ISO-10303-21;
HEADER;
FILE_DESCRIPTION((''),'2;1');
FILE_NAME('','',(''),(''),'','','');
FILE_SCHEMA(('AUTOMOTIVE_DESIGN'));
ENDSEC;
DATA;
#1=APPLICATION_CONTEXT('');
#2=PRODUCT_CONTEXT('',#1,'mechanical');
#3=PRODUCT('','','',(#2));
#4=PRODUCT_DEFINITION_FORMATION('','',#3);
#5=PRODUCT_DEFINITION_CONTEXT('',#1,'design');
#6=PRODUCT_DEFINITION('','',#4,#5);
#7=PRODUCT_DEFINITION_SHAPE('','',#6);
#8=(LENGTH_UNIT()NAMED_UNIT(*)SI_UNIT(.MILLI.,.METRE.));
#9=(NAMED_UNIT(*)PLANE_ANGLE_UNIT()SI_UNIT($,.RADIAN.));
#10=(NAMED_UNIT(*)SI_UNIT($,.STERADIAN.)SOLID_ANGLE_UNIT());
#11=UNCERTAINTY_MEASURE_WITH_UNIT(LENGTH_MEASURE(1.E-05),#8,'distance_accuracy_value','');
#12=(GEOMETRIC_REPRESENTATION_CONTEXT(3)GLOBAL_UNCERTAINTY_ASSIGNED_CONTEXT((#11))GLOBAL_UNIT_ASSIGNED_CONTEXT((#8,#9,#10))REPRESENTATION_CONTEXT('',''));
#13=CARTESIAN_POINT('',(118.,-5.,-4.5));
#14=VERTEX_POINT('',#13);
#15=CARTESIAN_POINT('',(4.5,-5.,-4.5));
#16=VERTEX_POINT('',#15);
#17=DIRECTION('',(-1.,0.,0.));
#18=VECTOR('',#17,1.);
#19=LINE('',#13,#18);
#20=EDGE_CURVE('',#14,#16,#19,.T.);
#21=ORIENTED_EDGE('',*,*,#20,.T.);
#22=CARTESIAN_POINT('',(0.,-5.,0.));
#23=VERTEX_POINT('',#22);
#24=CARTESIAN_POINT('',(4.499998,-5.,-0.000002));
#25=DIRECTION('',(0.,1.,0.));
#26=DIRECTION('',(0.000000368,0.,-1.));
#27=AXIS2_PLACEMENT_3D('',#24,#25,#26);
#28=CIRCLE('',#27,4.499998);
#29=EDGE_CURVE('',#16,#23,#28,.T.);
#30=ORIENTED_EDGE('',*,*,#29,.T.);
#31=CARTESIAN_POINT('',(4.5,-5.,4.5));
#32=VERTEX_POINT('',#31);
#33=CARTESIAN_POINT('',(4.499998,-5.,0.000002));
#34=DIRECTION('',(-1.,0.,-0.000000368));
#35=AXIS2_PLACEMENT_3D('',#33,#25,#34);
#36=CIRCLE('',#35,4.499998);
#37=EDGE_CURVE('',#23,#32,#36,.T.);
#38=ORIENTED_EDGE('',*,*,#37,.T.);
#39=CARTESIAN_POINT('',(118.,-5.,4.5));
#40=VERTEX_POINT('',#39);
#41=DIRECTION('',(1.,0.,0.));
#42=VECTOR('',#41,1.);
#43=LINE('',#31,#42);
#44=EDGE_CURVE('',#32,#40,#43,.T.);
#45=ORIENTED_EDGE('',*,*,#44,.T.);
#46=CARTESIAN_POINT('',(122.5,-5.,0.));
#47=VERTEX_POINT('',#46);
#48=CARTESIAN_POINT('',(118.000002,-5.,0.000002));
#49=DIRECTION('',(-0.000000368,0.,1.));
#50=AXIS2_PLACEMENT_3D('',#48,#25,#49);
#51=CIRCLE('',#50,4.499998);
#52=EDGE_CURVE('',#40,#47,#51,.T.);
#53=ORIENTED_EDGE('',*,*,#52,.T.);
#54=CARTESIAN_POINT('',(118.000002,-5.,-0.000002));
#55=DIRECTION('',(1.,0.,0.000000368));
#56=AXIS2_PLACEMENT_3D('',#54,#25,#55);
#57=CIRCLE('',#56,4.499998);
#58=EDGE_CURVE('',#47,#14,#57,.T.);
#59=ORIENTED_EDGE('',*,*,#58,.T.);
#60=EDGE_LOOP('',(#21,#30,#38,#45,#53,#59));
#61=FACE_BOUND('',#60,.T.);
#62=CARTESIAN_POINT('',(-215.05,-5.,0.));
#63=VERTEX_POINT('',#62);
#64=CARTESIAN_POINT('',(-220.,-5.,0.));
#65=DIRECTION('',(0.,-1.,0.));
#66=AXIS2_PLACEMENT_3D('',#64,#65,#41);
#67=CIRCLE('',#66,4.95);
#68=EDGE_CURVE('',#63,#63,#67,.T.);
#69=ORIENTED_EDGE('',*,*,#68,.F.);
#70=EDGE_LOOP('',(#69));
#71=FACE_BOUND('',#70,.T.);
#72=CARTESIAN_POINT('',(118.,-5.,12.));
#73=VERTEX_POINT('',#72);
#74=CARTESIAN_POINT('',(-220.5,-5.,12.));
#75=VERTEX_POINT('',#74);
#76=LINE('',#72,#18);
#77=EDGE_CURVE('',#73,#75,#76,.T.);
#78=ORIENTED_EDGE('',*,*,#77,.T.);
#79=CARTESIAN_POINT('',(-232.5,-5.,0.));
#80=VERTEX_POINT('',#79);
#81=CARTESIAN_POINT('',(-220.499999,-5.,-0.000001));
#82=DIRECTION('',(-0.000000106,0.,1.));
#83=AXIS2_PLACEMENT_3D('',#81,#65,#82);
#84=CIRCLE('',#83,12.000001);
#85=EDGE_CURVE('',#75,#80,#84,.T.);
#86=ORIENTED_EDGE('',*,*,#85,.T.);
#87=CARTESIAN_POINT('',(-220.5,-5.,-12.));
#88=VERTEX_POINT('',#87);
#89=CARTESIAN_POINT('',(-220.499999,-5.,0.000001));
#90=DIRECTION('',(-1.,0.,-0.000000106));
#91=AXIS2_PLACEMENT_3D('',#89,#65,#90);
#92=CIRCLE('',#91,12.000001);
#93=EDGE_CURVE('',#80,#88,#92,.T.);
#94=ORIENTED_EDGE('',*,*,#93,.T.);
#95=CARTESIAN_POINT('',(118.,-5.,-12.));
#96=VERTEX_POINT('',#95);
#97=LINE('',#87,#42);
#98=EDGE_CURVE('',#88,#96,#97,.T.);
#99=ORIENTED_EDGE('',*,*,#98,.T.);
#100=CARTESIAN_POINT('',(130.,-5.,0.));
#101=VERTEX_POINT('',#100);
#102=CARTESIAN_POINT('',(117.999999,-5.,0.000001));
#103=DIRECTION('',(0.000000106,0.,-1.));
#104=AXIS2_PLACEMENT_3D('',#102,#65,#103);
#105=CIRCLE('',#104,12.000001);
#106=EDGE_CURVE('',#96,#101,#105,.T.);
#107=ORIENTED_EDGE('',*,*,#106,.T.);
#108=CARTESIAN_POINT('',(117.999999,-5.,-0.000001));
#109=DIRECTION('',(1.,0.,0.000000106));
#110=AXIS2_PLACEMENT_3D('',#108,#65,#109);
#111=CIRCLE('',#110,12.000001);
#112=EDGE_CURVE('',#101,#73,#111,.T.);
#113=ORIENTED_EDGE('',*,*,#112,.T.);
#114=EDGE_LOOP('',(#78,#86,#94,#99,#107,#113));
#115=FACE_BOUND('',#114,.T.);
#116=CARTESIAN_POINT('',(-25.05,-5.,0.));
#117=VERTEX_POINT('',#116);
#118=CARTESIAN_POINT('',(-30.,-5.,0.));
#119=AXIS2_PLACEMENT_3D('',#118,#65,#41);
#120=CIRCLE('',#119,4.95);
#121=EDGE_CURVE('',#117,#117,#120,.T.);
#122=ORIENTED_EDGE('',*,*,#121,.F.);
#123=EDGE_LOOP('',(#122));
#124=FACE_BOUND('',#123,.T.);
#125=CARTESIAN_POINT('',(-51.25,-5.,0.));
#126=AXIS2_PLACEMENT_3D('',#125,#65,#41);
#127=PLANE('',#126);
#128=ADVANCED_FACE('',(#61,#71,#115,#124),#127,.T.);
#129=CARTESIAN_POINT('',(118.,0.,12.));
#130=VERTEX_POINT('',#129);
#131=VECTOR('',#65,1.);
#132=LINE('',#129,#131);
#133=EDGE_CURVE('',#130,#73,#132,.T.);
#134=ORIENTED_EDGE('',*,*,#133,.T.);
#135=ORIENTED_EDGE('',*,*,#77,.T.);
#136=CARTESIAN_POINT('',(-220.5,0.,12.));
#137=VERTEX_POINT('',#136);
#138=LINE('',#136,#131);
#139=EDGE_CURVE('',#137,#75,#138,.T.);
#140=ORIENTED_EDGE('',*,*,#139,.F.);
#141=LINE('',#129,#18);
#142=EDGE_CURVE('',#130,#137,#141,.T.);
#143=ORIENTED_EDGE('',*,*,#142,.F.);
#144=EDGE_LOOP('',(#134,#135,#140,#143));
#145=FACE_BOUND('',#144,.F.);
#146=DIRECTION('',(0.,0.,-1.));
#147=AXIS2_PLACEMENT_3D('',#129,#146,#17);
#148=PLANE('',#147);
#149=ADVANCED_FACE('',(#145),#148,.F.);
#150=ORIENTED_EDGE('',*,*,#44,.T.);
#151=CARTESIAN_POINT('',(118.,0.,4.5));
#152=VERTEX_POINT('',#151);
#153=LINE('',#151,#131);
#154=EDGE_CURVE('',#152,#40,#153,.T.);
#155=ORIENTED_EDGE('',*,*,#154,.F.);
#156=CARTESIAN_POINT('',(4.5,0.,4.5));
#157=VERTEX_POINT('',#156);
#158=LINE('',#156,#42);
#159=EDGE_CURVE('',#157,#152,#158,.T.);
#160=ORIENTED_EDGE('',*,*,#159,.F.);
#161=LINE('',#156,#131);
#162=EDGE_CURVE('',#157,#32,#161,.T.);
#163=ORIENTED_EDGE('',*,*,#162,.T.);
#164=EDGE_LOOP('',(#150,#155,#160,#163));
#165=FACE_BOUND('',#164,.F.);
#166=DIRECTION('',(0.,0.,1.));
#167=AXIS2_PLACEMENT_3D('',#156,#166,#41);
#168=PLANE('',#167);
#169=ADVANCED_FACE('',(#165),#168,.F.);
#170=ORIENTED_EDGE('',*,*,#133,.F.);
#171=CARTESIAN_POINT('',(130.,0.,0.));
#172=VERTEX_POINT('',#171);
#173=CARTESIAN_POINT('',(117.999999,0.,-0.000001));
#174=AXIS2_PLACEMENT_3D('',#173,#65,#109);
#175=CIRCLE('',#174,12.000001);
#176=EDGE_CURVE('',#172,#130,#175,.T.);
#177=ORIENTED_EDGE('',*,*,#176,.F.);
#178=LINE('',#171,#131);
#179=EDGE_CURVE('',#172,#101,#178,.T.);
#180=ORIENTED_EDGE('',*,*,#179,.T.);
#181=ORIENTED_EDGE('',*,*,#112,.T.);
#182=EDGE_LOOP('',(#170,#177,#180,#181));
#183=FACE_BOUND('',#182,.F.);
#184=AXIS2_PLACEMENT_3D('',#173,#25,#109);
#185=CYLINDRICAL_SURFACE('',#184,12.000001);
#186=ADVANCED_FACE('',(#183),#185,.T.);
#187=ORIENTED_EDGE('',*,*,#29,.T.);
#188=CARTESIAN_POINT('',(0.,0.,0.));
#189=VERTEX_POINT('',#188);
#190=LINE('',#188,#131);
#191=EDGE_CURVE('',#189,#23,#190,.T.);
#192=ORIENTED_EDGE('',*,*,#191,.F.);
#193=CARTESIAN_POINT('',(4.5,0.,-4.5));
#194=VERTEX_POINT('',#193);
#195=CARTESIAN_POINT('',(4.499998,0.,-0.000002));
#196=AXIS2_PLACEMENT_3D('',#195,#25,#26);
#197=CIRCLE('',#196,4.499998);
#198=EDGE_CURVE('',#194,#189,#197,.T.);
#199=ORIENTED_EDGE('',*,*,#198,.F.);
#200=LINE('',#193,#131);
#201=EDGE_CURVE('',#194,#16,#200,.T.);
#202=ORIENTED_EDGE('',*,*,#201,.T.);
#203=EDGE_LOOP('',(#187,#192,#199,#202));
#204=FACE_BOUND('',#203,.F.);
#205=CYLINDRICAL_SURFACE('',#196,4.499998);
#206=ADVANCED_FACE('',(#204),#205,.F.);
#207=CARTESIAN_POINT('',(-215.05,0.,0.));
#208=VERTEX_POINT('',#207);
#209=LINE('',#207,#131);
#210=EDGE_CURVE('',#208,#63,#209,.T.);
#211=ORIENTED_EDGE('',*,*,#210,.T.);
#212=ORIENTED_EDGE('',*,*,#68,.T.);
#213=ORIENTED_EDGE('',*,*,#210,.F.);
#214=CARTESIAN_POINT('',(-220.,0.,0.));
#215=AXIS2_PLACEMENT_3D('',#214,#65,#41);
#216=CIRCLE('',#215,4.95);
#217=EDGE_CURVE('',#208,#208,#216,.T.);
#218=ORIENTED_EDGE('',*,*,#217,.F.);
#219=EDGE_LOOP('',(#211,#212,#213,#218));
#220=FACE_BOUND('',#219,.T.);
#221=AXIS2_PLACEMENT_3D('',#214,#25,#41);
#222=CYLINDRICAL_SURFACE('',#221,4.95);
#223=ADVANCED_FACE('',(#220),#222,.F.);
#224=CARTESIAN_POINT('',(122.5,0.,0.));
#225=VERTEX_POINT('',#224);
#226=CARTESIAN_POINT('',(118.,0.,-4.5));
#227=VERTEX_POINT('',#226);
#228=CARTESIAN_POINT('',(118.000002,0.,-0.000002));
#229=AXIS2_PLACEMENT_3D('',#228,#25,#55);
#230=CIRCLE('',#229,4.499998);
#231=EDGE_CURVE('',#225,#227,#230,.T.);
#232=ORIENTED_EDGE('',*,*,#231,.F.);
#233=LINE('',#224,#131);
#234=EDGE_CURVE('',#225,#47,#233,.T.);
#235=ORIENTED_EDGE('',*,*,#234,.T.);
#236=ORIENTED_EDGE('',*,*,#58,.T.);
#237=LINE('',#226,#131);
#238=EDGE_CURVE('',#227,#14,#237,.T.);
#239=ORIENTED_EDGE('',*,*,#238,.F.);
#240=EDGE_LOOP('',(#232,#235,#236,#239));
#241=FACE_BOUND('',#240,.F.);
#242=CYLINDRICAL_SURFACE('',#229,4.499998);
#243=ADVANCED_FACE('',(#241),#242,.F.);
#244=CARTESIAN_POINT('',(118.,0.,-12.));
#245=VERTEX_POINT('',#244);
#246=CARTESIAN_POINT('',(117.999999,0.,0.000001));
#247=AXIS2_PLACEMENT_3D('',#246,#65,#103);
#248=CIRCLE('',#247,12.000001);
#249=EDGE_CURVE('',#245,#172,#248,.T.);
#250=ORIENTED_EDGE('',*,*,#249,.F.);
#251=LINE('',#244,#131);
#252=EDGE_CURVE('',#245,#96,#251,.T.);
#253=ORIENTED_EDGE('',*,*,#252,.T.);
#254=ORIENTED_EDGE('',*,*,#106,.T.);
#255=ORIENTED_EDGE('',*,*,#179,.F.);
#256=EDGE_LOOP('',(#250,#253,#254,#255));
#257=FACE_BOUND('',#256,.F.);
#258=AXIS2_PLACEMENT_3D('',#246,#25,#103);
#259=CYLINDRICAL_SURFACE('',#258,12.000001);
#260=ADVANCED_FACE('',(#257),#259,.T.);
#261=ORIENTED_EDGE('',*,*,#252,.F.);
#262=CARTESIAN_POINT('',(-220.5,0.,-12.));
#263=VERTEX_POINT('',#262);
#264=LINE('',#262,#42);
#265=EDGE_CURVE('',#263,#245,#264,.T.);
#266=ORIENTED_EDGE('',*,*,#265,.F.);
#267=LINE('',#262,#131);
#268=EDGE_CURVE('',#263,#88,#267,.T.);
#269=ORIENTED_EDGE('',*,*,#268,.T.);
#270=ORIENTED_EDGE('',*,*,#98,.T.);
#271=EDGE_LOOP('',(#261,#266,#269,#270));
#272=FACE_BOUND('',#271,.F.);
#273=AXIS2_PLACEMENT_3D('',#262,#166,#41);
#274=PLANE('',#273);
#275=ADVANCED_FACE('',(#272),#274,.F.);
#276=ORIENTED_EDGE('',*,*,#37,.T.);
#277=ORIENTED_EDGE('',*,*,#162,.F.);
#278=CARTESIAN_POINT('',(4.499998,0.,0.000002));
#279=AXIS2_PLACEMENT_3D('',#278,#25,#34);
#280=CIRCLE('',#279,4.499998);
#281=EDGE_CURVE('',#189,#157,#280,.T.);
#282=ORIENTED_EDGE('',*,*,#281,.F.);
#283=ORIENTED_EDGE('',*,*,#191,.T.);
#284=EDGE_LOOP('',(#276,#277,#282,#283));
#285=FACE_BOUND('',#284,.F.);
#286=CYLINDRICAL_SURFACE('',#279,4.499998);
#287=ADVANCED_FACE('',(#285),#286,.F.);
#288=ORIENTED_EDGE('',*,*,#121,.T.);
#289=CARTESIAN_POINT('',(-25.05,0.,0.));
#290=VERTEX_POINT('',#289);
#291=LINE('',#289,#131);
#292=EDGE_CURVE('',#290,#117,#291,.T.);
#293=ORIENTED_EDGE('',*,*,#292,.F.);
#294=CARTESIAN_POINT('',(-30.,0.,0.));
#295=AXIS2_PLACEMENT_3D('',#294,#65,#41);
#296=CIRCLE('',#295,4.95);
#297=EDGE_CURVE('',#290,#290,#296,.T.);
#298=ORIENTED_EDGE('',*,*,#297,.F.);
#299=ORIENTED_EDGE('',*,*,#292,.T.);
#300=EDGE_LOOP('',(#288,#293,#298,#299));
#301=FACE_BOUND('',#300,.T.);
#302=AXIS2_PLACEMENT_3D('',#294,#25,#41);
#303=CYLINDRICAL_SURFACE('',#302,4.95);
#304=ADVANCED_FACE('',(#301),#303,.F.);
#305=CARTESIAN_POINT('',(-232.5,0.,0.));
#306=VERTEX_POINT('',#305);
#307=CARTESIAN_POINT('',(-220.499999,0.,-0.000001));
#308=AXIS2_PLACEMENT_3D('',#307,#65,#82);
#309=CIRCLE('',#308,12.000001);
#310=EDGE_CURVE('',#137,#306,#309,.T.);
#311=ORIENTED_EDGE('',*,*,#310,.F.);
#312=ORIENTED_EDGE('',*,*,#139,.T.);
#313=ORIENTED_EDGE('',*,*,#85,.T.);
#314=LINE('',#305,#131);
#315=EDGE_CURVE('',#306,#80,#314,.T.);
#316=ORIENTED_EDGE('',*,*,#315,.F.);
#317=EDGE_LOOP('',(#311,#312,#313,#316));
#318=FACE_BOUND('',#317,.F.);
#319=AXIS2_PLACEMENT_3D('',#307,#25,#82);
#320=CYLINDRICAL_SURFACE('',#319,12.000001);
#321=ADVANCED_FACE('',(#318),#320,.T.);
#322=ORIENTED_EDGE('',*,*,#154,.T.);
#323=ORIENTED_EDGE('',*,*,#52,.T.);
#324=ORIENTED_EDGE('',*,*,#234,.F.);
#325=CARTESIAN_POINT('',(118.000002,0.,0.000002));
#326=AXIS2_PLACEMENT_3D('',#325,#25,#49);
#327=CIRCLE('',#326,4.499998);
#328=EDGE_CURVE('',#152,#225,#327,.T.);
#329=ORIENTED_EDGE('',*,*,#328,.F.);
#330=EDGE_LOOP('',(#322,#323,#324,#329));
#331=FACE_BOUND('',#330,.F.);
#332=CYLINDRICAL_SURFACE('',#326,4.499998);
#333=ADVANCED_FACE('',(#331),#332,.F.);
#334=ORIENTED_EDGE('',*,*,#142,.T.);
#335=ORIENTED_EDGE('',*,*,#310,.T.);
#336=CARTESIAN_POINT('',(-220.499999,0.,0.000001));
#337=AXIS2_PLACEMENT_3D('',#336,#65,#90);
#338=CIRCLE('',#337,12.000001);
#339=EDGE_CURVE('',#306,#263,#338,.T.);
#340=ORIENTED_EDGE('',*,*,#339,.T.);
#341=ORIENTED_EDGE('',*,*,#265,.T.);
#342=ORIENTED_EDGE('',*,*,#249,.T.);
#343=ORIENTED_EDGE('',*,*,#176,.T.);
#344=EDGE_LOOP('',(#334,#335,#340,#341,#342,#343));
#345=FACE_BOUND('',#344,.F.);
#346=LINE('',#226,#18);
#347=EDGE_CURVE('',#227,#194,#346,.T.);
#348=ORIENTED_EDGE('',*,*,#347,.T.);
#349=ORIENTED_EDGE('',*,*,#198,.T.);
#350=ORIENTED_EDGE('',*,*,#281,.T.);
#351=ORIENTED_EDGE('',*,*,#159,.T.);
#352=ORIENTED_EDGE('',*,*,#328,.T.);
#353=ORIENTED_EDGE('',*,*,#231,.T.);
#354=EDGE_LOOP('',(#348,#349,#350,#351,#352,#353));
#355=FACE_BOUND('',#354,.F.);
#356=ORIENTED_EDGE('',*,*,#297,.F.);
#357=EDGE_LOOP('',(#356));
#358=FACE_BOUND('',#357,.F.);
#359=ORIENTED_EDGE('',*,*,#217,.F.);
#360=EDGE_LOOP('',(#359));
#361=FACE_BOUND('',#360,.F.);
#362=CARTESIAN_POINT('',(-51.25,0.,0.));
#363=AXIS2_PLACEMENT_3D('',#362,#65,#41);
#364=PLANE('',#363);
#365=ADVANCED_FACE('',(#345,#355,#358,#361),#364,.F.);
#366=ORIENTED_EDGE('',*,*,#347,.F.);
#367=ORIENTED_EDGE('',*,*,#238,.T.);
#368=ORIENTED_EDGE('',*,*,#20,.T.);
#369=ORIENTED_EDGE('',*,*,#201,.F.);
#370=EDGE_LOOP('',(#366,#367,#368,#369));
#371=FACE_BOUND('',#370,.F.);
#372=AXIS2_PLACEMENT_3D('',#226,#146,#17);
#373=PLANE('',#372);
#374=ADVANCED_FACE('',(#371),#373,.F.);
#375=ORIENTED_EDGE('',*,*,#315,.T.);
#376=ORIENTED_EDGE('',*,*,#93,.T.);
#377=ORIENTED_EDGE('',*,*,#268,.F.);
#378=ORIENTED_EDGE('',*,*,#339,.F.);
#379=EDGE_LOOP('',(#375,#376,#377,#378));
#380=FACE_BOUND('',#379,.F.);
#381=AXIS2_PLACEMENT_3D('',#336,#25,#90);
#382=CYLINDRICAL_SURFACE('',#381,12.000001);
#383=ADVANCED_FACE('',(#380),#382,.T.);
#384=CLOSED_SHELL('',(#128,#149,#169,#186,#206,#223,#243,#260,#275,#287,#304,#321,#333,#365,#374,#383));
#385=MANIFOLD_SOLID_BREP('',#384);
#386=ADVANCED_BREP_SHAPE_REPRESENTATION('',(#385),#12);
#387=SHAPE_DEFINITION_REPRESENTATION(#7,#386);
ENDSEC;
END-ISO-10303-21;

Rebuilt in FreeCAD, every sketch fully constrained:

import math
import FreeCAD as App
import Part
import Sketcher

V = App.Vector

doc = App.newDocument("Part")
body = doc.addObject("PartDesign::Body", "Body")

# Sketch on XZ plane
sketch1 = body.newObject("Sketcher::SketchObject", "Sketch")
sketch1.AttachmentSupport = (doc.getObject("XZ_Plane"), [""])
sketch1.MapMode = "FlatFace"
sketch1.addGeometry([
    Part.LineSegment(V(-220.5, -12, 0), V(118, -12, 0)),  # 0
    Part.ArcOfCircle(Part.Circle(V(117.999999, 0.000001, 0), V(0, 0, 1), 12.000001), math.radians(-89.999994), math.radians(-0.000006)),  # 1
    Part.ArcOfCircle(Part.Circle(V(117.999999, -0.000001, 0), V(0, 0, 1), 12.000001), math.radians(0.000006), math.radians(89.999994)),  # 2
    Part.LineSegment(V(118, 12, 0), V(-220.5, 12, 0)),  # 3
    Part.ArcOfCircle(Part.Circle(V(-220.499999, -0.000001, 0), V(0, 0, 1), 12.000001), math.radians(90.000006), math.radians(179.999994)),  # 4
    Part.ArcOfCircle(Part.Circle(V(-220.499999, 0.000001, 0), V(0, 0, 1), 12.000001), math.radians(-179.999994), math.radians(-90.000006)),  # 5
    Part.Circle(V(-220, 0, 0), V(0, 0, 1), 4.95),  # 6
    Part.Circle(V(-30, 0, 0), V(0, 0, 1), 4.95),  # 7
    Part.ArcOfCircle(Part.Circle(V(118.000002, 0.000002, 0), V(0, 0, 1), 4.499998), math.radians(-0.000021), math.radians(90.000021)),  # 8
    Part.ArcOfCircle(Part.Circle(V(118.000002, -0.000002, 0), V(0, 0, 1), 4.499998), math.radians(-90.000021), math.radians(0.000021)),  # 9
    Part.LineSegment(V(118, -4.5, 0), V(4.5, -4.5, 0)),  # 10
    Part.ArcOfCircle(Part.Circle(V(4.499998, -0.000002, 0), V(0, 0, 1), 4.499998), math.radians(179.999979), math.radians(270.000021)),  # 11
    Part.ArcOfCircle(Part.Circle(V(4.499998, 0.000002, 0), V(0, 0, 1), 4.499998), math.radians(89.999979), math.radians(180.000021)),  # 12
    Part.LineSegment(V(4.5, 4.5, 0), V(118, 4.5, 0)),  # 13
], False)
sketch1.addConstraint([
    Sketcher.Constraint("Tangent", 0, 2, 1, 1),
    Sketcher.Constraint("Tangent", 1, 2, 2, 1),
    Sketcher.Constraint("Tangent", 2, 2, 3, 1),
    Sketcher.Constraint("Tangent", 3, 2, 4, 1),
    Sketcher.Constraint("Tangent", 4, 2, 5, 1),
    Sketcher.Constraint("Tangent", 5, 2, 0, 1),
    Sketcher.Constraint("Tangent", 8, 1, 9, 2),
    Sketcher.Constraint("Tangent", 9, 1, 10, 1),
    Sketcher.Constraint("Tangent", 10, 2, 11, 2),
    Sketcher.Constraint("Tangent", 11, 1, 12, 2),
    Sketcher.Constraint("Tangent", 12, 1, 13, 1),
    Sketcher.Constraint("Tangent", 13, 2, 8, 2),
    Sketcher.Constraint("Horizontal", 0),
    Sketcher.Constraint("Horizontal", 3),
    Sketcher.Constraint("Horizontal", 10),
    Sketcher.Constraint("Horizontal", 13),
    Sketcher.Constraint("Coincident", 11, 1, -1, 1),
    Sketcher.Constraint("Coincident", 8, 3, 1, 3),
    Sketcher.Constraint("Equal", 1, 2),
    Sketcher.Constraint("Equal", 2, 4),
    Sketcher.Constraint("Equal", 6, 7),
    Sketcher.Constraint("Equal", 8, 9),
    Sketcher.Constraint("Equal", 9, 11),
    Sketcher.Constraint("PointOnObject", 1, 3, -1),
    Sketcher.Constraint("PointOnObject", 6, 3, -1),
    Sketcher.Constraint("PointOnObject", 7, 3, -1),
    Sketcher.Constraint("PointOnObject", 1, 2, -1),
    Sketcher.Constraint("PointOnObject", 4, 2, -1),
    Sketcher.Constraint("PointOnObject", 8, 1, -1),
    Sketcher.Constraint("Radius", 1, 12.000001),
    Sketcher.Constraint("Diameter", 6, 9.9),
    Sketcher.Constraint("Radius", 8, 4.499998),
    Sketcher.Constraint("DistanceX", 0, 1, 0, 2, 338.5),
    Sketcher.Constraint("DistanceX", 10, 2, 10, 1, 113.5),
    Sketcher.Constraint("DistanceX", 6, 3, -1, 1, 220.0),
    Sketcher.Constraint("DistanceX", 7, 3, -1, 1, 30.0),
])
pad1 = body.newObject("PartDesign::Pad", "Pad")
pad1.Profile = sketch1
pad1.Length = 5

doc.recompute()
